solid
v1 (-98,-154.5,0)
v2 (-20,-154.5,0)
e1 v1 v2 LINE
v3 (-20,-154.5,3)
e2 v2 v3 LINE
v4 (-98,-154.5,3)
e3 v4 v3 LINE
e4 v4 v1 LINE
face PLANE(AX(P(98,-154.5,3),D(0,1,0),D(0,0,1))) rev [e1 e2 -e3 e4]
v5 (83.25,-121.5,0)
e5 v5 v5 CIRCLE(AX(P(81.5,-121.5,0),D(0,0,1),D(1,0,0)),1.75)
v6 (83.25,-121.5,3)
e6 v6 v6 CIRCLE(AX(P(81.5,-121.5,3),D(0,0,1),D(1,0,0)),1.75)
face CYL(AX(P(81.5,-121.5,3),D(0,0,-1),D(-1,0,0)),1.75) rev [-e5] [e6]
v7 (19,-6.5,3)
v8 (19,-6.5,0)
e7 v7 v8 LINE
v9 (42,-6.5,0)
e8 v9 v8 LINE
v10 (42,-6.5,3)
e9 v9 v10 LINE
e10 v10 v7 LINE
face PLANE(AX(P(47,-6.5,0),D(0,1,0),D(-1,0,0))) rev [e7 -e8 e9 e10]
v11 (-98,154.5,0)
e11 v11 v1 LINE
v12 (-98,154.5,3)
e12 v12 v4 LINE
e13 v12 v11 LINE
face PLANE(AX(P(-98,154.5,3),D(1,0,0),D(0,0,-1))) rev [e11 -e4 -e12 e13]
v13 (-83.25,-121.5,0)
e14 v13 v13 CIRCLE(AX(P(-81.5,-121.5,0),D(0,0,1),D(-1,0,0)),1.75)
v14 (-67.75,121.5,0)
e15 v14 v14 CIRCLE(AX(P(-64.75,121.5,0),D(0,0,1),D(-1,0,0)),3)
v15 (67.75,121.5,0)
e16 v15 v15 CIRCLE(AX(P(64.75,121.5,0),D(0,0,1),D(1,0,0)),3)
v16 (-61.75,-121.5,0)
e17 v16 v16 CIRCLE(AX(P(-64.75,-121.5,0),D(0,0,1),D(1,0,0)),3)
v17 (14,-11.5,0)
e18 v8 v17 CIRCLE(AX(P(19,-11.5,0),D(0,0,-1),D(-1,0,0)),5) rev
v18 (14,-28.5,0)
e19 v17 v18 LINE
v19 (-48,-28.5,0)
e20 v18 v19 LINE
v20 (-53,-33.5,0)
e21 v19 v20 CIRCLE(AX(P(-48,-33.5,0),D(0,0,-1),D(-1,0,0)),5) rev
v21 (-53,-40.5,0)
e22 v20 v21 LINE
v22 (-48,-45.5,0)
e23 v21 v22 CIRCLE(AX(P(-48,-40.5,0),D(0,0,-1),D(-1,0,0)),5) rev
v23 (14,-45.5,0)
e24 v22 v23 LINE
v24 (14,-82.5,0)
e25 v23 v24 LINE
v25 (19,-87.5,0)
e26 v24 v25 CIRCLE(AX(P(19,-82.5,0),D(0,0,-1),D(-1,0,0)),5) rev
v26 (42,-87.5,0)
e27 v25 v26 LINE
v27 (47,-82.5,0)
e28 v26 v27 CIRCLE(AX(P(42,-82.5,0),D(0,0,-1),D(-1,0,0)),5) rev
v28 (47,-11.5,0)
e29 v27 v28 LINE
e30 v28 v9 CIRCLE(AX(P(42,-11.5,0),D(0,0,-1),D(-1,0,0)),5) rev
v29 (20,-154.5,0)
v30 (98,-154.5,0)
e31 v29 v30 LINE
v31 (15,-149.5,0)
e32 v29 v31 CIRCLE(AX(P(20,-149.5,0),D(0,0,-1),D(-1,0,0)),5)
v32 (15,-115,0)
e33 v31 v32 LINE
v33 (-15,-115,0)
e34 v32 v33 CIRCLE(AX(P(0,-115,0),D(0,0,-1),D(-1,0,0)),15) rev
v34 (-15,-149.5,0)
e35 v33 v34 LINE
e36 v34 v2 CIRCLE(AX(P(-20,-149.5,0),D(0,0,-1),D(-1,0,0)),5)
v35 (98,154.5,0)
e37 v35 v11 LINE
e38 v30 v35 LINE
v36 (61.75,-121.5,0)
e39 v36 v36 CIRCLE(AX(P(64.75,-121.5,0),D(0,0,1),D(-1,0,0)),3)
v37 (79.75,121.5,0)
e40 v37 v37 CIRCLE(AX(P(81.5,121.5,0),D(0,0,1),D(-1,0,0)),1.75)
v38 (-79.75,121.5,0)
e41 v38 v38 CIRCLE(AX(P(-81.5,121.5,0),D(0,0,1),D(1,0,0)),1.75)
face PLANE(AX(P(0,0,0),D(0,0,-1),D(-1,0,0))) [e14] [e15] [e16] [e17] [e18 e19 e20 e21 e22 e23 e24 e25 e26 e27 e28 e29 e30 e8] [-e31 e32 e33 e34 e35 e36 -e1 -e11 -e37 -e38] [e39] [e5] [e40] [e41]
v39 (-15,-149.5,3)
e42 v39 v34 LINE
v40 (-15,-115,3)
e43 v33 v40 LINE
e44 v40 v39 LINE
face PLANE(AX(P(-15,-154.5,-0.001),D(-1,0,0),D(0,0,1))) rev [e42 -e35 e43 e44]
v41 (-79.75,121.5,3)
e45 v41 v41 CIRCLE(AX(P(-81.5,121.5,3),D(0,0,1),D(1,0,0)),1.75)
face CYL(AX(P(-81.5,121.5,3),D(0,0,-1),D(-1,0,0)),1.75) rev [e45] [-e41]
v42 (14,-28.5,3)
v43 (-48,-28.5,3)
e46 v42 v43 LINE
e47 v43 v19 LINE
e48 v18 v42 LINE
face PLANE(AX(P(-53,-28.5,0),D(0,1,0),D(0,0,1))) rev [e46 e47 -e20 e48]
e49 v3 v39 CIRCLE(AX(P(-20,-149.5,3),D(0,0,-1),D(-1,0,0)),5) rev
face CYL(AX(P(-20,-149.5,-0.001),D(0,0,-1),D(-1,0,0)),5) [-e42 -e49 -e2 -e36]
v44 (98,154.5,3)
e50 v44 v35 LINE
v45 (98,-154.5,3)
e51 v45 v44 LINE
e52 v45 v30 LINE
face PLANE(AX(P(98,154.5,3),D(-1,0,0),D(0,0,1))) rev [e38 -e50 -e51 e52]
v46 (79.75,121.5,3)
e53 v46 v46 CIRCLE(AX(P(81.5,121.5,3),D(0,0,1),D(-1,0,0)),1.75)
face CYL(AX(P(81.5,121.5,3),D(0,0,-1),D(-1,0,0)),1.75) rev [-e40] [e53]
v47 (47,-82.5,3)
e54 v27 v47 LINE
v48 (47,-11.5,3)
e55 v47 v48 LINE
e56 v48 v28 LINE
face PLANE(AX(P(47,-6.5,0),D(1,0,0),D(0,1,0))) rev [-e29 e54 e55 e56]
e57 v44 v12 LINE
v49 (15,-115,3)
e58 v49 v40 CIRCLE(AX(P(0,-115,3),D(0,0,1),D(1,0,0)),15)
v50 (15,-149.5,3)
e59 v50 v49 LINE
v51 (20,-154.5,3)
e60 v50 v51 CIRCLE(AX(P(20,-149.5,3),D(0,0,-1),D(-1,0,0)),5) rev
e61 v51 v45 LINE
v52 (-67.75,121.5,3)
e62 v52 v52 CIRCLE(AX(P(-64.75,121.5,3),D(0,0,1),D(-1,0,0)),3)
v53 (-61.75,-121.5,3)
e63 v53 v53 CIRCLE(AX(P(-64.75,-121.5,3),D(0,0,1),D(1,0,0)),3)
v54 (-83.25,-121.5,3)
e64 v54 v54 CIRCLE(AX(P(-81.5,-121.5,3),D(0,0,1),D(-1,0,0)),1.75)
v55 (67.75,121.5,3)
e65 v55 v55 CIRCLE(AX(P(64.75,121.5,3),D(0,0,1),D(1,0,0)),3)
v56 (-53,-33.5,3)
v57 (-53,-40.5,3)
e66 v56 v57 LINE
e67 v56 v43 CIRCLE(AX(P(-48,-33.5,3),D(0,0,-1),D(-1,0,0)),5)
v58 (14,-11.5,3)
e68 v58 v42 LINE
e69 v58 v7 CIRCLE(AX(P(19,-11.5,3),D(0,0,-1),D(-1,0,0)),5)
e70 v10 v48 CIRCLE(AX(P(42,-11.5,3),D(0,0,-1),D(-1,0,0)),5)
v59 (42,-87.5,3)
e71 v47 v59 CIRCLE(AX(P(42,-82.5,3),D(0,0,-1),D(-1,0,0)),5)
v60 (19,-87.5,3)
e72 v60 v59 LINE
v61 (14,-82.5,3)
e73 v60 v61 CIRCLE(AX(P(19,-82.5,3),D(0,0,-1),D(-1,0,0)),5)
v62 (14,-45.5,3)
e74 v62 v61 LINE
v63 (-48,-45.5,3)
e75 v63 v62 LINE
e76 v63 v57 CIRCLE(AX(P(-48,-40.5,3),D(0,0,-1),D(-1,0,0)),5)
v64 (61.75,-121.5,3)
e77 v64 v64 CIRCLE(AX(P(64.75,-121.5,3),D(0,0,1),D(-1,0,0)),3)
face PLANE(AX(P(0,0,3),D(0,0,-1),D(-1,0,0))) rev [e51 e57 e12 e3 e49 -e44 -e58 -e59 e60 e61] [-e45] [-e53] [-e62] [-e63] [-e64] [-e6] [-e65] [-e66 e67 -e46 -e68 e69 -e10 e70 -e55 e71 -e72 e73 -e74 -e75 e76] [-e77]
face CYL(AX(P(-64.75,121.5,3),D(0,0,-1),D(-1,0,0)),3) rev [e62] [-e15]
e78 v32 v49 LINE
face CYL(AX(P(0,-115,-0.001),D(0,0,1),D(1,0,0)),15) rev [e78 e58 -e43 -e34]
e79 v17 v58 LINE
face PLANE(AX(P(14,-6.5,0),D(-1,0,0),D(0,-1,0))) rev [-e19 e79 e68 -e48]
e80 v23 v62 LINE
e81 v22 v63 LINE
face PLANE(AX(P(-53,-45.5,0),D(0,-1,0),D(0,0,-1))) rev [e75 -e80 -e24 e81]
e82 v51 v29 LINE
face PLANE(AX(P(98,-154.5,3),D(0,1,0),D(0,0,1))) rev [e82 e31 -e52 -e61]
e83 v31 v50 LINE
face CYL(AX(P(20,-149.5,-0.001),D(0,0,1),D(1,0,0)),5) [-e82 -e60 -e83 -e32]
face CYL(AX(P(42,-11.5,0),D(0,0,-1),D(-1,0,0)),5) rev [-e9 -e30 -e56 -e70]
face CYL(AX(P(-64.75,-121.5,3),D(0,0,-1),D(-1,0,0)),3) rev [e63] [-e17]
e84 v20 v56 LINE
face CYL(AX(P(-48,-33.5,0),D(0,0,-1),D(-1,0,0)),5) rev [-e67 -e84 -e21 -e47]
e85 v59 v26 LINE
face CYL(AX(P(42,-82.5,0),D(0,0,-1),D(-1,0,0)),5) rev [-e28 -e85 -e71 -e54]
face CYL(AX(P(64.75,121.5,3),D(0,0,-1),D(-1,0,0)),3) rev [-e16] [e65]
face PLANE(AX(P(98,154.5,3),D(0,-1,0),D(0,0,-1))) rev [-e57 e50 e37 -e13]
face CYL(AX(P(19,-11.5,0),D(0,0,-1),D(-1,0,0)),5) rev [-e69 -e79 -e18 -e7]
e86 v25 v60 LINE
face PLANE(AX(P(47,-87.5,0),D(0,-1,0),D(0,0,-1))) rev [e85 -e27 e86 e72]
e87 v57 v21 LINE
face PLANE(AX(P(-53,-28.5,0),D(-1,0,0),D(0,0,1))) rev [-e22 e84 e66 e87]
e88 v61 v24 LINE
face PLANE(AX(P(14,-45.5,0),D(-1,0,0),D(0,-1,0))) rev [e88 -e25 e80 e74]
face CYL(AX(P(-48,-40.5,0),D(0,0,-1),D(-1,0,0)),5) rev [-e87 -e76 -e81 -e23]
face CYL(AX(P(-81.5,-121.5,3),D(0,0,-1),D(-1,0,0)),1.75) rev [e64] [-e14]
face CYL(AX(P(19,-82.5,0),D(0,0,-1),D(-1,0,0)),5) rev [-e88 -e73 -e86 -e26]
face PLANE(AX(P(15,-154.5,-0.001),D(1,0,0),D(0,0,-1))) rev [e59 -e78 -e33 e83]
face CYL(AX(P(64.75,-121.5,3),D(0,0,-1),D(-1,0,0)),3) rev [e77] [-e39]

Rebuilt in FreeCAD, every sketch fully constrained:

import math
import FreeCAD as App
import Part
import Sketcher


def edges_at(feature, points):
    """Names of the edges that pass closest to the given points."""
    edges = feature.Shape.Edges
    near = lambda p: min(range(len(edges)), key=lambda i: edges[i].distToShape(Part.Vertex(*p))[0])
    return sorted({f"Edge{near(p) + 1}" for p in points})

doc = App.newDocument("Part")
body = doc.addObject("PartDesign::Body", "Body")

sketch1 = body.newObject("Sketcher::SketchObject", "Sketch")
sketch1.AttachmentSupport = (doc.getObject("XY_Plane"), [""])
sketch1.MapMode = "FlatFace"
sketch1.addGeometry(Part.LineSegment(App.Vector(-98, 154.5, 0), App.Vector(-98, -154.5, 0)), False)
sketch1.addGeometry(Part.LineSegment(App.Vector(-98, -154.5, 0), App.Vector(98, -154.5, 0)), False)
sketch1.addGeometry(Part.LineSegment(App.Vector(98, -154.5, 0), App.Vector(98, 154.5, 0)), False)
sketch1.addGeometry(Part.LineSegment(App.Vector(98, 154.5, 0), App.Vector(-98, 154.5, 0)), False)
sketch1.addGeometry(Part.Circle(App.Vector(-81.5, -121.5, 0), App.Vector(0, 0, 1), 1.8), False)
sketch1.addGeometry(Part.Circle(App.Vector(-64.8, -121.5, 0), App.Vector(0, 0, 1), 3), False)
sketch1.addGeometry(Part.Circle(App.Vector(64.8, -121.5, 0), App.Vector(0, 0, 1), 3), False)
sketch1.addGeometry(Part.Circle(App.Vector(81.5, -121.5, 0), App.Vector(0, 0, 1), 1.8), False)
sketch1.addGeometry(Part.Circle(App.Vector(-81.5, 121.5, 0), App.Vector(0, 0, 1), 1.8), False)
sketch1.addGeometry(Part.Circle(App.Vector(-64.8, 121.5, 0), App.Vector(0, 0, 1), 3), False)
sketch1.addGeometry(Part.Circle(App.Vector(64.8, 121.5, 0), App.Vector(0, 0, 1), 3), False)
sketch1.addGeometry(Part.Circle(App.Vector(81.5, 121.5, 0), App.Vector(0, 0, 1), 1.8), False)
sketch1.addConstraint(Sketcher.Constraint("Coincident", 0, 2, 1, 1))
sketch1.addConstraint(Sketcher.Constraint("Coincident", 1, 2, 2, 1))
sketch1.addConstraint(Sketcher.Constraint("Coincident", 2, 2, 3, 1))
sketch1.addConstraint(Sketcher.Constraint("Coincident", 3, 2, 0, 1))
sketch1.addConstraint(Sketcher.Constraint("Vertical", 0))
sketch1.addConstraint(Sketcher.Constraint("Horizontal", 1))
sketch1.addConstraint(Sketcher.Constraint("Vertical", 2))
sketch1.addConstraint(Sketcher.Constraint("Horizontal", 3))
sketch1.addConstraint(Sketcher.Constraint("Equal", 5, 6))
sketch1.addConstraint(Sketcher.Constraint("Equal", 4, 7))
sketch1.addConstraint(Sketcher.Constraint("Equal", 7, 8))
sketch1.addConstraint(Sketcher.Constraint("Equal", 6, 9))
sketch1.addConstraint(Sketcher.Constraint("Equal", 9, 10))
sketch1.addConstraint(Sketcher.Constraint("Equal", 8, 11))
sketch1.addConstraint(Sketcher.Constraint("Symmetric", 7, 3, 8, 3, -1, 1))
sketch1.addConstraint(Sketcher.Constraint("Symmetric", 6, 3, 9, 3, -1, 1))
sketch1.addConstraint(Sketcher.Constraint("Symmetric", 5, 3, 10, 3, -1, 1))
sketch1.addConstraint(Sketcher.Constraint("Symmetric", 4, 3, 11, 3, -1, 1))
sketch1.addConstraint(Sketcher.Constraint("Symmetric", 0, 2, 2, 2, -1, 1))
sketch1.addConstraint(Sketcher.Constraint("Symmetric", 5, 3, 6, 3, -2))
sketch1.addConstraint(Sketcher.Constraint("Symmetric", 4, 3, 7, 3, -2))
sketch1.addConstraint(Sketcher.Constraint("Horizontal", 4, 3, 5, 3))
sketch1.addConstraint(Sketcher.Constraint("Diameter", 5, 6.0))
sketch1.addConstraint(Sketcher.Constraint("Diameter", 4, 3.5))
sketch1.addConstraint(Sketcher.Constraint("DistanceX", 1, 1, 1, 2, 196.0))
sketch1.addConstraint(Sketcher.Constraint("DistanceY", 0, 2, 0, 1, 309.0))
sketch1.addConstraint(Sketcher.Constraint("DistanceX", 4, 3, 7, 3, 163.0))
sketch1.addConstraint(Sketcher.Constraint("DistanceY", 4, 3, 8, 3, 243.0))
sketch1.addConstraint(Sketcher.Constraint("DistanceX", 5, 3, 6, 3, 129.5))
pad1 = body.newObject("PartDesign::Pad", "Pad")
pad1.Profile = sketch1
pad1.Length = 3

sketch2 = body.newObject("Sketcher::SketchObject", "Sketch001")
sketch2.AttachmentSupport = (doc.getObject("XY_Plane"), [""])
sketch2.MapMode = "FlatFace"
sketch2.AttachmentOffset = App.Placement(App.Vector(0, 0, 3), App.Rotation())
sketch2.addGeometry(Part.LineSegment(App.Vector(-15, -115, 0), App.Vector(-15, -154, 0)), False)
sketch2.addGeometry(Part.ArcOfCircle(Part.Circle(App.Vector(0, -154, 0), App.Vector(0, 0, 1), 15), math.radians(180), math.radians(360)), False)
sketch2.addGeometry(Part.LineSegment(App.Vector(15, -154, 0), App.Vector(15, -115, 0)), False)
sketch2.addGeometry(Part.ArcOfCircle(Part.Circle(App.Vector(0, -115, 0), App.Vector(0, 0, 1), 15), math.radians(0), math.radians(180)), False)
sketch2.addConstraint(Sketcher.Constraint("Tangent", 0, 2, 1, 1))
sketch2.addConstraint(Sketcher.Constraint("Tangent", 1, 2, 2, 1))
sketch2.addConstraint(Sketcher.Constraint("Tangent", 2, 2, 3, 1))
sketch2.addConstraint(Sketcher.Constraint("Tangent", 3, 2, 0, 1))
sketch2.addConstraint(Sketcher.Constraint("Vertical", 0))
sketch2.addConstraint(Sketcher.Constraint("Vertical", 2))
sketch2.addConstraint(Sketcher.Constraint("PointOnObject", 1, 3, -2))
sketch2.addConstraint(Sketcher.Constraint("Radius", 1, 15.0))
sketch2.addConstraint(Sketcher.Constraint("DistanceY", 0, 2, 0, 1, 39.5))
sketch2.addConstraint(Sketcher.Constraint("DistanceY", 3, 3, -1, 1, 115.0))
pocket1 = body.newObject("PartDesign::Pocket", "Pocket")
pocket1.Profile = sketch2
pocket1.Type = "UpToFirst"
doc.recompute()

fillet = body.newObject("PartDesign::Fillet", "Fillet")
fillet.Base = (pocket1, edges_at(pocket1, [(-15, -154.5, 1.5), (15, -154.5, 1.5)]))
fillet.Radius = 5

sketch3 = body.newObject("Sketcher::SketchObject", "Sketch002")
sketch3.AttachmentSupport = (doc.getObject("XY_Plane"), [""])
sketch3.MapMode = "FlatFace"
sketch3.AttachmentOffset = App.Placement(App.Vector(0, 0, 3), App.Rotation())
sketch3.addGeometry(Part.LineSegment(App.Vector(14, -28, 0), App.Vector(-53, -28, 0)), False)
sketch3.addGeometry(Part.LineSegment(App.Vector(-53, -28, 0), App.Vector(-53, -46, 0)), False)
sketch3.addGeometry(Part.LineSegment(App.Vector(-53, -46, 0), App.Vector(14, -46, 0)), False)
sketch3.addGeometry(Part.LineSegment(App.Vector(14, -46, 0), App.Vector(14, -88, 0)), False)
sketch3.addGeometry(Part.LineSegment(App.Vector(14, -88, 0), App.Vector(47, -88, 0)), False)
sketch3.addGeometry(Part.LineSegment(App.Vector(47, -88, 0), App.Vector(47, -6, 0)), False)
sketch3.addGeometry(Part.LineSegment(App.Vector(47, -6, 0), App.Vector(14, -6, 0)), False)
sketch3.addGeometry(Part.LineSegment(App.Vector(14, -6, 0), App.Vector(14, -28, 0)), False)
sketch3.addConstraint(Sketcher.Constraint("Coincident", 0, 2, 1, 1))
sketch3.addConstraint(Sketcher.Constraint("Coincident", 1, 2, 2, 1))
sketch3.addConstraint(Sketcher.Constraint("Coincident", 2, 2, 3, 1))
sketch3.addConstraint(Sketcher.Constraint("Coincident", 3, 2, 4, 1))
sketch3.addConstraint(Sketcher.Constraint("Coincident", 4, 2, 5, 1))
sketch3.addConstraint(Sketcher.Constraint("Coincident", 5, 2, 6, 1))
sketch3.addConstraint(Sketcher.Constraint("Coincident", 6, 2, 7, 1))
sketch3.addConstraint(Sketcher.Constraint("Coincident", 7, 2, 0, 1))
sketch3.addConstraint(Sketcher.Constraint("Horizontal", 0))
sketch3.addConstraint(Sketcher.Constraint("Vertical", 1))
sketch3.addConstraint(Sketcher.Constraint("Horizontal", 2))
sketch3.addConstraint(Sketcher.Constraint("Vertical", 3))
sketch3.addConstraint(Sketcher.Constraint("Horizontal", 4))
sketch3.addConstraint(Sketcher.Constraint("Vertical", 5))
sketch3.addConstraint(Sketcher.Constraint("Horizontal", 6))
sketch3.addConstraint(Sketcher.Constraint("Vertical", 7))
sketch3.addConstraint(Sketcher.Constraint("Vertical", 3, 2, 6, 2))
sketch3.addConstraint(Sketcher.Constraint("DistanceX", 0, 2, 0, 1, 67.0))
sketch3.addConstraint(Sketcher.Constraint("DistanceX", 4, 1, 4, 2, 33.0))
sketch3.addConstraint(Sketcher.Constraint("DistanceY", 1, 2, 1, 1, 17.0))
sketch3.addConstraint(Sketcher.Constraint("DistanceY", 3, 2, 3, 1, 42.0))
sketch3.addConstraint(Sketcher.Constraint("DistanceY", 5, 1, 5, 2, 81.0))
sketch3.addConstraint(Sketcher.Constraint("DistanceX", 0, 2, -1, 1, 53.0))
sketch3.addConstraint(Sketcher.Constraint("DistanceY", 0, 2, -1, 1, 28.5))
pocket2 = body.newObject("PartDesign::Pocket", "Pocket001")
pocket2.Profile = sketch3
pocket2.Type = "ThroughAll"
doc.recompute()

fillet2 = body.newObject("PartDesign::Fillet", "Fillet001")
fillet2.Base = (pocket2, edges_at(pocket2, [
    (-53, -45.5, 1.5),
    (-53, -28.5, 1.5),
    (14, -6.5, 1.5),
    (47, -6.5, 1.5),
    (47, -87.5, 1.5),
    (14, -87.5, 1.5),
]))
fillet2.Radius = 5

doc.recompute()
